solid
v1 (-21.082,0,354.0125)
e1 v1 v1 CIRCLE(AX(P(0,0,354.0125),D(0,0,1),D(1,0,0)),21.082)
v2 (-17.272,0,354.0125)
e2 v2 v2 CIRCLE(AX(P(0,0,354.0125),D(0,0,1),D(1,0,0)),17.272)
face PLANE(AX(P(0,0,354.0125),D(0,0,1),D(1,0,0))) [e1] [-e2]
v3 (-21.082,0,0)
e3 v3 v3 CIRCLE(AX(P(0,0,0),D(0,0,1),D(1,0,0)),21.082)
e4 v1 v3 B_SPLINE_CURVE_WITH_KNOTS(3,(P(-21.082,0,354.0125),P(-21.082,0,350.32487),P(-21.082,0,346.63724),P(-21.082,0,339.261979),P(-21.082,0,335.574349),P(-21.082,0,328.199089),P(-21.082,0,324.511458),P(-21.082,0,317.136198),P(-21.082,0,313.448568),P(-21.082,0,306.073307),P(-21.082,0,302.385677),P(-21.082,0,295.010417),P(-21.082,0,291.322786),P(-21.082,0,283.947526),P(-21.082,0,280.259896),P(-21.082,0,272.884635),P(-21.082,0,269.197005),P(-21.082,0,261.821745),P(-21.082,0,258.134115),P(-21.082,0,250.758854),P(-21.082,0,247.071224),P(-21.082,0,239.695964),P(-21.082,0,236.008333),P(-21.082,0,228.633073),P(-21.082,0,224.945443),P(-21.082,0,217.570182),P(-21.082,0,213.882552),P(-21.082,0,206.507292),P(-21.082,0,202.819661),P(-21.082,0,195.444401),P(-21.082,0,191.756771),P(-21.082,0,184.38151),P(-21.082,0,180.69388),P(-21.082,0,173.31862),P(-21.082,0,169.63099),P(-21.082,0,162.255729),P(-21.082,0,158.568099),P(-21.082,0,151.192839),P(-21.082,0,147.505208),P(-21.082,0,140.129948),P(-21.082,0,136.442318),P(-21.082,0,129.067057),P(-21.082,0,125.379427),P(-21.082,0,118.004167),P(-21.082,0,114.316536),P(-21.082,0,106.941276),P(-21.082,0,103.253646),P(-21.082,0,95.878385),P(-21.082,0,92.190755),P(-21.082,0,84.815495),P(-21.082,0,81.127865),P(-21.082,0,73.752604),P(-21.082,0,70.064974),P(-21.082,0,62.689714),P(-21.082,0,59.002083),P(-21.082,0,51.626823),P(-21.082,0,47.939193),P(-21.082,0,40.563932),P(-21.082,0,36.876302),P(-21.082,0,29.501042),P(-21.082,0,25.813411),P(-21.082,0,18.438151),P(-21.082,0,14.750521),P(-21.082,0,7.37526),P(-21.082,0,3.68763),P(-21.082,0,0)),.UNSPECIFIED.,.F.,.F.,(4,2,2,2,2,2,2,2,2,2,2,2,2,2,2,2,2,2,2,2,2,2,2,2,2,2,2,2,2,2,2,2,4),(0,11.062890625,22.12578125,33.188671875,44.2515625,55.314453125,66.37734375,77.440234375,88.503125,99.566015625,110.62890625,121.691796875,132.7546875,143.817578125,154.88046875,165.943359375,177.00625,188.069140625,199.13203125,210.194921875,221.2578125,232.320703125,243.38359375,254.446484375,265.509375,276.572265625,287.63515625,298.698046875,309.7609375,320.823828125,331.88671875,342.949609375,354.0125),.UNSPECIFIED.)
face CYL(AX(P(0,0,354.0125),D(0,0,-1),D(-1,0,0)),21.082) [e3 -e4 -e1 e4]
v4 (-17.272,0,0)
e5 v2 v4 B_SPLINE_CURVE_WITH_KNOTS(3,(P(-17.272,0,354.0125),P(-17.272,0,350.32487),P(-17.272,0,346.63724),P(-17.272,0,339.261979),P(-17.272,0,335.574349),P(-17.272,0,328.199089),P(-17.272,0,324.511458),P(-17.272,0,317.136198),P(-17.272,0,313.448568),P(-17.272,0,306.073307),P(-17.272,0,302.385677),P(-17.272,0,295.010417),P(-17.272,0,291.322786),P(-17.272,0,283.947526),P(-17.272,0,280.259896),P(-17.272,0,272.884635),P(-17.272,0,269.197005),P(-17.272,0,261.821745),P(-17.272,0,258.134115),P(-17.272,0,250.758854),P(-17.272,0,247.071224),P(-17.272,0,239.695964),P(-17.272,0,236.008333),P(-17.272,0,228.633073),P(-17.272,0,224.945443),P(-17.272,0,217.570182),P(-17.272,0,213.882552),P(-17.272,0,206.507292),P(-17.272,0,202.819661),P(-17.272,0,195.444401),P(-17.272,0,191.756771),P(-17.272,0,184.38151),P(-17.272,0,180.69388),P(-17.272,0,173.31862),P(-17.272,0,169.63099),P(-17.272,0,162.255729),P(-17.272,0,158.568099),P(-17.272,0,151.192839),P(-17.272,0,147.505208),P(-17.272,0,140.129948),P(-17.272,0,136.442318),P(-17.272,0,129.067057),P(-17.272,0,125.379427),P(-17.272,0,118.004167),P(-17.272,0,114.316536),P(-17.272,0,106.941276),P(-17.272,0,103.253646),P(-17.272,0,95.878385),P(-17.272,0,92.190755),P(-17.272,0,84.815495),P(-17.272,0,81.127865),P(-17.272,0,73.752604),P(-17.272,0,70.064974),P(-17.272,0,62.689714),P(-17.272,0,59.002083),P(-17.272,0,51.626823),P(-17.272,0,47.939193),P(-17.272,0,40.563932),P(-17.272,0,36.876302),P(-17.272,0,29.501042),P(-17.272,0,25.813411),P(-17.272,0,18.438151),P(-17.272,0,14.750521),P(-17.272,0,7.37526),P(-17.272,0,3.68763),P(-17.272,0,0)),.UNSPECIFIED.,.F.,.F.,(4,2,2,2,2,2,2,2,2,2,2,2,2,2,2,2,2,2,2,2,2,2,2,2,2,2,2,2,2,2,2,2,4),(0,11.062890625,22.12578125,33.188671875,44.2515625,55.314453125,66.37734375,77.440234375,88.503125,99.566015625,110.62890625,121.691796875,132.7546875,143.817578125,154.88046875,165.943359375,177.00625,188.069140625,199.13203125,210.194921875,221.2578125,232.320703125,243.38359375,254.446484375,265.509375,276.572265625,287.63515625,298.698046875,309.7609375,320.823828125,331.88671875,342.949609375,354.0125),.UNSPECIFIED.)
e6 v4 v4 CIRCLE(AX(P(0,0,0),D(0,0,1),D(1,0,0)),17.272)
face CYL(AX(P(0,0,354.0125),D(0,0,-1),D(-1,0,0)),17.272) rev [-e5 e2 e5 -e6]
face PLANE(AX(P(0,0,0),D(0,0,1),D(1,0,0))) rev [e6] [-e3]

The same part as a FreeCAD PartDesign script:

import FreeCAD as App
import Part
import Sketcher

V = App.Vector
Q = App.Units.Quantity

doc = App.newDocument("Part")
params = doc.addObject("Spreadsheet::Sheet", "Params")
for row, (alias, value) in enumerate([
    ("sketch1_diameter", "1.66 in"),
    ("sketch1_diameter2", "1.36 in"),
    ("pad1_length", "13.9375 in"),
], start=1):
    params.set(f"A{row}", alias)
    params.set(f"B{row}", "=" + value)
    params.setAlias(f"B{row}", alias)

body = doc.addObject("PartDesign::Body", "Body")

sketch1 = body.newObject("Sketcher::SketchObject", "Sketch")
sketch1.AttachmentSupport = (doc.getObject("XY_Plane"), [""])
sketch1.MapMode = "FlatFace"
sketch1.addGeometry([
    Part.Circle(V(0, 0, 0), V(0, 0, 1), 21),
    Part.Circle(V(0, 0, 0), V(0, 0, 1), 17),
], False)
sketch1.addConstraint([
    Sketcher.Constraint("Coincident", 0, 3, -1, 1),
    Sketcher.Constraint("Coincident", 1, 3, -1, 1),
    Sketcher.Constraint("Diameter", 0, Q("1.66 in")),
    Sketcher.Constraint("Diameter", 1, Q("1.36 in")),
])
sketch1.setExpression("Constraints[2]", "Params.sketch1_diameter")
sketch1.setExpression("Constraints[3]", "Params.sketch1_diameter2")
pad1 = body.newObject("PartDesign::Pad", "Pad")
pad1.Profile = sketch1
pad1.setExpression("Length", "Params.pad1_length")

doc.recompute()
